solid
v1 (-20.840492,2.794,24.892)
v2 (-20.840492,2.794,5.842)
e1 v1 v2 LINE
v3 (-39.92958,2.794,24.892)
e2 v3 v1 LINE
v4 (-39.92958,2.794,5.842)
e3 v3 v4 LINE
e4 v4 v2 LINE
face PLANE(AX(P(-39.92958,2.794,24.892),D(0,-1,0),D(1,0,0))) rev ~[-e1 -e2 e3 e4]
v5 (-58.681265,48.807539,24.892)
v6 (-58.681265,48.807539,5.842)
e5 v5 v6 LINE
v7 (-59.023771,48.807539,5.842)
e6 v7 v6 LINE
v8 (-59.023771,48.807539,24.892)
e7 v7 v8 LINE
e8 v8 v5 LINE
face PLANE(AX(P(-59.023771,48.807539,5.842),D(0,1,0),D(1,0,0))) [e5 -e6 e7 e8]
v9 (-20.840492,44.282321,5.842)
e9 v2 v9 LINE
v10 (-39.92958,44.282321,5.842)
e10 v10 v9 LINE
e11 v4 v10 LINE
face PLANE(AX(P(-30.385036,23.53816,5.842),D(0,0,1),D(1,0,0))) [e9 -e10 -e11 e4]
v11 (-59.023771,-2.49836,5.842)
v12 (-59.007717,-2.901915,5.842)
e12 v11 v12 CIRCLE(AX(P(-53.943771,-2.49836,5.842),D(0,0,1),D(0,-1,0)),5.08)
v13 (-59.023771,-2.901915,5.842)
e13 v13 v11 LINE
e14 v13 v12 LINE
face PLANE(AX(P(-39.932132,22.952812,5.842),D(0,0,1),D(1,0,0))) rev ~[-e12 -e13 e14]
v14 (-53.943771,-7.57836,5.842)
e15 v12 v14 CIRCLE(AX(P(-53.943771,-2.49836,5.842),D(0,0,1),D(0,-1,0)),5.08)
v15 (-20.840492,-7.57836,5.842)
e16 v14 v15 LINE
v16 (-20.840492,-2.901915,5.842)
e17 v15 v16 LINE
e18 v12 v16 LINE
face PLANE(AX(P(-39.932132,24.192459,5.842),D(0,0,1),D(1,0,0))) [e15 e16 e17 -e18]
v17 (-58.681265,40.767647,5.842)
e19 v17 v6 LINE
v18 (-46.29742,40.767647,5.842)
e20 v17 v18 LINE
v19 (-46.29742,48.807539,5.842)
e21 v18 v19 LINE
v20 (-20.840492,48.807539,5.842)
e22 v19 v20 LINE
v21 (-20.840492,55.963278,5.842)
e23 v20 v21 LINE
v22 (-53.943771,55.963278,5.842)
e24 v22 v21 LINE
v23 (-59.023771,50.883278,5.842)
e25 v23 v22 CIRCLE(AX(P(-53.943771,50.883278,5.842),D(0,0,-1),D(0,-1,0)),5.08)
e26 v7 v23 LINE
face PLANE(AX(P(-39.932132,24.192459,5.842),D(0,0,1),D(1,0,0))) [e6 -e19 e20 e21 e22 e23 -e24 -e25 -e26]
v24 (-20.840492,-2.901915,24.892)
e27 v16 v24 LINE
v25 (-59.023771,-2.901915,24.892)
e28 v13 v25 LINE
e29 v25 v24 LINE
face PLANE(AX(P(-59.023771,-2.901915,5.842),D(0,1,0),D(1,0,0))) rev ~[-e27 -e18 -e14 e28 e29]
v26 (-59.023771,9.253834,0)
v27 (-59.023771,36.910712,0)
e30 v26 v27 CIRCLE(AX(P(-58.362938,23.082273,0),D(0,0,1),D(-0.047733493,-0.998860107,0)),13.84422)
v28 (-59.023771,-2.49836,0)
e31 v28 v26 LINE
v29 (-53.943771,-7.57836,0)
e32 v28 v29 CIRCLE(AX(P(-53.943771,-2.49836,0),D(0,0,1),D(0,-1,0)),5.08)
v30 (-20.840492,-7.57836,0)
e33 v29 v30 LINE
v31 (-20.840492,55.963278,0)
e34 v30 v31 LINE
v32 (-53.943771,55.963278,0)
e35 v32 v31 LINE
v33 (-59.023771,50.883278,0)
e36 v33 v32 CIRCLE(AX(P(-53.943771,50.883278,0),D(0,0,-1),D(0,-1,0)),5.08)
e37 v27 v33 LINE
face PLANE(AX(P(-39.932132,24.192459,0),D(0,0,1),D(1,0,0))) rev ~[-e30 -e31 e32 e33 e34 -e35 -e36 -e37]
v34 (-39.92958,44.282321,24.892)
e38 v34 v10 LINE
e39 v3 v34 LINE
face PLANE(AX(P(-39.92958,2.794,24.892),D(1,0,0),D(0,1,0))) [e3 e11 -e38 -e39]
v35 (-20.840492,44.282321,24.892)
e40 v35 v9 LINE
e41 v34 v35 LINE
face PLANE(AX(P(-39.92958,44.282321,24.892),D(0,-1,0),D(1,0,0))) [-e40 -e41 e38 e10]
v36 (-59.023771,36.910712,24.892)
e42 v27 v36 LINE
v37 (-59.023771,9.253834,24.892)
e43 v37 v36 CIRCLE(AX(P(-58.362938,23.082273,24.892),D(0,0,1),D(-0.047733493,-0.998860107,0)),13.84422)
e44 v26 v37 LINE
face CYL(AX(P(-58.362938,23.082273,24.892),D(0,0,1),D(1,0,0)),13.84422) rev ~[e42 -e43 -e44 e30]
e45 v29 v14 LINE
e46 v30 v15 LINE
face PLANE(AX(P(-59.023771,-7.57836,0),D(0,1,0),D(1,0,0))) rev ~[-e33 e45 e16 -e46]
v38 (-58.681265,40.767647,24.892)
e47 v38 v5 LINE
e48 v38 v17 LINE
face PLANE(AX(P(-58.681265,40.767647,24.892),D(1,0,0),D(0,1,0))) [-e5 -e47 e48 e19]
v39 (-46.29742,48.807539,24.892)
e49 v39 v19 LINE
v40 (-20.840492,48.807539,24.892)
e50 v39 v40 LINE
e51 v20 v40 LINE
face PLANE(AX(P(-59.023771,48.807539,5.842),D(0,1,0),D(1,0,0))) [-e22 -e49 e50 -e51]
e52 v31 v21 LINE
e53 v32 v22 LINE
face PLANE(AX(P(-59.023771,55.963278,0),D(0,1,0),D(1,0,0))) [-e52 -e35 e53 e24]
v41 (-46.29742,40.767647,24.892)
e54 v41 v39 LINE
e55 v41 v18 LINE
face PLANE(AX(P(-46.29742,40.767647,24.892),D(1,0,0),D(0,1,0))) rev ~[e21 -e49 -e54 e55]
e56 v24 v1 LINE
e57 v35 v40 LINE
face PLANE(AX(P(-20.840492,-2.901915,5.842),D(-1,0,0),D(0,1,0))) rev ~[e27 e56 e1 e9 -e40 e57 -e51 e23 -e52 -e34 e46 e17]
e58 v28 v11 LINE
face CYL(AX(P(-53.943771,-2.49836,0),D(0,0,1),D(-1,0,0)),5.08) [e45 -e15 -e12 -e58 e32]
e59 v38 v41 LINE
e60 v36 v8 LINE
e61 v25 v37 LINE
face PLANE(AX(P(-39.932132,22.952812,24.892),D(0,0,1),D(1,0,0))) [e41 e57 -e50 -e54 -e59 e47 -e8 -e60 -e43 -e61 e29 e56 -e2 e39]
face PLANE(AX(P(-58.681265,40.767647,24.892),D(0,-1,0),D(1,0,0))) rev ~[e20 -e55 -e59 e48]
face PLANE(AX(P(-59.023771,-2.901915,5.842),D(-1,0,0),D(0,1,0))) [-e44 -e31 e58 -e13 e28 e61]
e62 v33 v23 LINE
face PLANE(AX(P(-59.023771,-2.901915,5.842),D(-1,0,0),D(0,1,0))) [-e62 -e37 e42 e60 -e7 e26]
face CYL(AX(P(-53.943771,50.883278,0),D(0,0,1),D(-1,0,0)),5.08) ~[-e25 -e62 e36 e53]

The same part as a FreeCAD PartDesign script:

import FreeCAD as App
import Part
import Sketcher
from FreeCAD import Vector
Q = App.Units.Quantity


def edges_at(feature, points):
    """Names of the edges that pass closest to the given points."""
    edges = feature.Shape.Edges
    near = lambda p: min(range(len(edges)), key=lambda i: edges[i].distToShape(Part.Vertex(*p))[0])
    return sorted({f"Edge{near(p) + 1}" for p in points})

doc = App.newDocument("Part")
body = doc.addObject("PartDesign::Body", "Body")

# Sketch on XY plane
sketch1 = body.newObject("Sketcher::SketchObject", "Sketch")
sketch1.AttachmentSupport = (doc.getObject("XY_Plane"), [""])
sketch1.MapMode = "FlatFace"
sketch1.addGeometry([
    Part.LineSegment(Vector(-59.023771, 55.963278, 0), Vector(-59.023771, -7.57836, 0)),
    Part.LineSegment(Vector(-59.023771, -7.57836, 0), Vector(-20.840492, -7.57836, 0)),
    Part.LineSegment(Vector(-20.840492, -7.57836, 0), Vector(-20.840492, 55.963278, 0)),
    Part.LineSegment(Vector(-20.840492, 55.963278, 0), Vector(-59.023771, 55.963278, 0)),
], False)
sketch1.addConstraint([
    Sketcher.Constraint("Coincident", 0, 2, 1, 1),
    Sketcher.Constraint("Coincident", 1, 2, 2, 1),
    Sketcher.Constraint("Coincident", 2, 2, 3, 1),
    Sketcher.Constraint("Coincident", 3, 2, 0, 1),
    Sketcher.Constraint("Vertical", 0),
    Sketcher.Constraint("Horizontal", 1),
    Sketcher.Constraint("Vertical", 2),
    Sketcher.Constraint("Horizontal", 3),
    Sketcher.Constraint("DistanceX", 1, 1, 1, 2, Q("38.183279 mm")),
    Sketcher.Constraint("DistanceY", 0, 2, 0, 1, Q("63.541638 mm")),
    Sketcher.Constraint("DistanceX", 0, 2, -1, 1, Q("59.023771 mm")),
    Sketcher.Constraint("DistanceY", 0, 2, -1, 1, Q("7.57836 mm")),
])
pad1 = body.newObject("PartDesign::Pad", "Pad")
pad1.Profile = sketch1
pad1.Length = Q("0.23 in")
doc.recompute()

fillet = body.newObject("PartDesign::Fillet", "Fillet")
fillet.Base = (pad1, edges_at(pad1, [(-59.024, 55.963, 2.921), (-59.024, -7.578, 2.921)]))
fillet.Radius = Q("0.2 in")

# Sketch on XY plane
sketch2 = body.newObject("Sketcher::SketchObject", "Sketch001")
sketch2.AttachmentSupport = (doc.getObject("XY_Plane"), [""])
sketch2.MapMode = "FlatFace"
sketch2.AttachmentOffset = App.Placement(Vector(0, 0, 0.23 * 25.4), App.Rotation())
sketch2.addGeometry([
    Part.LineSegment(Vector(-59.023771, 48.807539, 0), Vector(-59.023771, -2.901915, 0)),
    Part.LineSegment(Vector(-59.023771, -2.901915, 0), Vector(-20.840492, -2.901915, 0)),
    Part.LineSegment(Vector(-20.840492, -2.901915, 0), Vector(-20.840492, 48.807539, 0)),
    Part.LineSegment(Vector(-20.840492, 48.807539, 0), Vector(-59.023771, 48.807539, 0)),
], False)
sketch2.addConstraint([
    Sketcher.Constraint("Coincident", 0, 2, 1, 1),
    Sketcher.Constraint("Coincident", 1, 2, 2, 1),
    Sketcher.Constraint("Coincident", 2, 2, 3, 1),
    Sketcher.Constraint("Coincident", 3, 2, 0, 1),
    Sketcher.Constraint("Vertical", 0),
    Sketcher.Constraint("Horizontal", 1),
    Sketcher.Constraint("Vertical", 2),
    Sketcher.Constraint("Horizontal", 3),
    Sketcher.Constraint("DistanceX", 1, 1, 1, 2, Q("38.183279 mm")),
    Sketcher.Constraint("DistanceY", 0, 2, 0, 1, Q("51.709455 mm")),
    Sketcher.Constraint("DistanceX", 0, 2, -1, 1, Q("59.023771 mm")),
    Sketcher.Constraint("DistanceY", -1, 1, 2, 2, Q("48.807539 mm")),
])
pad2 = body.newObject("PartDesign::Pad", "Pad001")
pad2.Profile = sketch2
pad2.Length = Q("0.75 in")

# Sketch on XY plane
sketch3 = body.newObject("Sketcher::SketchObject", "Sketch002")
sketch3.AttachmentSupport = (doc.getObject("XY_Plane"), [""])
sketch3.MapMode = "FlatFace"
sketch3.AttachmentOffset = App.Placement(Vector(0, 0, 0.98 * 25.4), App.Rotation())
sketch3.addGeometry([
    Part.LineSegment(Vector(-39.92958, 44.282321, 0), Vector(-39.92958, 2.794, 0)),
    Part.LineSegment(Vector(-39.92958, 2.794, 0), Vector(-20.840492, 2.794, 0)),
    Part.LineSegment(Vector(-20.840492, 2.794, 0), Vector(-20.840492, 44.282321, 0)),
    Part.LineSegment(Vector(-20.840492, 44.282321, 0), Vector(-39.92958, 44.282321, 0)),
], False)
sketch3.addConstraint([
    Sketcher.Constraint("Coincident", 0, 2, 1, 1),
    Sketcher.Constraint("Coincident", 1, 2, 2, 1),
    Sketcher.Constraint("Coincident", 2, 2, 3, 1),
    Sketcher.Constraint("Coincident", 3, 2, 0, 1),
    Sketcher.Constraint("Vertical", 0),
    Sketcher.Constraint("Horizontal", 1),
    Sketcher.Constraint("Vertical", 2),
    Sketcher.Constraint("Horizontal", 3),
    Sketcher.Constraint("DistanceY", -1, 1, 0, 2, Q("0.11 in")),
    Sketcher.Constraint("DistanceY", 0, 2, 0, 1, Q("41.488321 mm")),
    Sketcher.Constraint("DistanceX", 1, 1, 1, 2, Q("19.089088 mm")),
    Sketcher.Constraint("DistanceX", 0, 2, -1, 1, Q("39.92958 mm")),
])
pocket1 = body.newObject("PartDesign::Pocket", "Pocket")
pocket1.Profile = sketch3
pocket1.Length = Q("0.75 in")

# Sketch on XY plane
sketch4 = body.newObject("Sketcher::SketchObject", "Sketch003")
sketch4.AttachmentSupport = (doc.getObject("XY_Plane"), [""])
sketch4.MapMode = "FlatFace"
sketch4.AttachmentOffset = App.Placement(Vector(0, 0, 0.98 * 25.4), App.Rotation())
sketch4.addGeometry(Part.Circle(Vector(-58.362938, 23.082273, 0), Vector(0, 0, 1), 13.84422), False)
sketch4.addConstraint([
    Sketcher.Constraint("Diameter", 0, Q("27.68844 mm")),
    Sketcher.Constraint("DistanceX", 0, 3, -1, 1, Q("58.362938 mm")),
    Sketcher.Constraint("DistanceY", -1, 1, 0, 3, Q("23.082273 mm")),
])
pocket2 = body.newObject("PartDesign::Pocket", "Pocket001")
pocket2.Profile = sketch4
pocket2.Length = Q("1 in")

# Sketch on XY plane
sketch5 = body.newObject("Sketcher::SketchObject", "Sketch004")
sketch5.AttachmentSupport = (doc.getObject("XY_Plane"), [""])
sketch5.MapMode = "FlatFace"
sketch5.AttachmentOffset = App.Placement(Vector(0, 0, 0.98 * 25.4), App.Rotation())
sketch5.addGeometry([
    Part.LineSegment(Vector(-58.681265, 48.927706, 0), Vector(-58.681265, 40.767647, 0)),
    Part.LineSegment(Vector(-58.681265, 40.767647, 0), Vector(-46.29742, 40.767647, 0)),
    Part.LineSegment(Vector(-46.29742, 40.767647, 0), Vector(-46.29742, 48.927706, 0)),
    Part.LineSegment(Vector(-46.29742, 48.927706, 0), Vector(-58.681265, 48.927706, 0)),
], False)
sketch5.addConstraint([
    Sketcher.Constraint("Coincident", 0, 2, 1, 1),
    Sketcher.Constraint("Coincident", 1, 2, 2, 1),
    Sketcher.Constraint("Coincident", 2, 2, 3, 1),
    Sketcher.Constraint("Coincident", 3, 2, 0, 1),
    Sketcher.Constraint("Vertical", 0),
    Sketcher.Constraint("Horizontal", 1),
    Sketcher.Constraint("Vertical", 2),
    Sketcher.Constraint("Horizontal", 3),
    Sketcher.Constraint("DistanceY", 0, 2, 0, 1, Q("8.160058 mm")),
    Sketcher.Constraint("DistanceX", 1, 1, 1, 2, Q("12.383845 mm")),
    Sketcher.Constraint("DistanceX", 1, 2, -1, 1, Q("46.29742 mm")),
    Sketcher.Constraint("DistanceY", -1, 1, 0, 2, Q("40.767647 mm")),
])
pocket3 = body.newObject("PartDesign::Pocket", "Pocket002")
pocket3.Profile = sketch5
pocket3.Length = Q("0.75 in")

doc.recompute()
